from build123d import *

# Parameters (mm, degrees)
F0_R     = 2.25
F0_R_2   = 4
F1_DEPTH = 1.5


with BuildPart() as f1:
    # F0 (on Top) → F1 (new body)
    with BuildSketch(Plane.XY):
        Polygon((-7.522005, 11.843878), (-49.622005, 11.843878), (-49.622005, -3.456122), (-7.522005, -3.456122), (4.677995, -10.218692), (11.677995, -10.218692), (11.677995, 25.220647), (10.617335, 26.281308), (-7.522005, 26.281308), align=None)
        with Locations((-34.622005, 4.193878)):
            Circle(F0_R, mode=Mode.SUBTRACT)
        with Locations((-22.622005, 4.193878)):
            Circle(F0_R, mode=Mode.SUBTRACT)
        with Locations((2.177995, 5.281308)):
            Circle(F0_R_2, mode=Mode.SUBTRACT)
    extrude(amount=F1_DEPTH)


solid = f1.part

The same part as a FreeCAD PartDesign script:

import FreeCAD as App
import Part
import Sketcher
Q = App.Units.Quantity

doc = App.newDocument("Part")
body = doc.addObject("PartDesign::Body", "Body")

# Sketch on XY plane
sketch1 = doc.addObject("Sketcher::SketchObject", "Sketch")
body.addObject(sketch1)
sketch1.AttachmentSupport = (doc.XY_Plane, [""])
sketch1.MapMode = "FlatFace"
sketch1.addGeometry(Part.LineSegment(App.Vector(-7.522005, 11.843878, 0), App.Vector(-49.622005, 11.843878, 0)), False)
sketch1.addGeometry(Part.LineSegment(App.Vector(-49.622005, 11.843878, 0), App.Vector(-49.622005, -3.456122, 0)), False)
sketch1.addGeometry(Part.LineSegment(App.Vector(-49.622005, -3.456122, 0), App.Vector(-7.522005, -3.456122, 0)), False)
sketch1.addGeometry(Part.LineSegment(App.Vector(-7.522005, -3.456122, 0), App.Vector(4.677995, -10.218692, 0)), False)
sketch1.addGeometry(Part.LineSegment(App.Vector(4.677995, -10.218692, 0), App.Vector(11.677995, -10.218692, 0)), False)
sketch1.addGeometry(Part.LineSegment(App.Vector(11.677995, -10.218692, 0), App.Vector(11.677995, 25.220647, 0)), False)
sketch1.addGeometry(Part.LineSegment(App.Vector(11.677995, 25.220647, 0), App.Vector(10.617335, 26.281308, 0)), False)
sketch1.addGeometry(Part.LineSegment(App.Vector(10.617335, 26.281308, 0), App.Vector(-7.522005, 26.281308, 0)), False)
sketch1.addGeometry(Part.LineSegment(App.Vector(-7.522005, 26.281308, 0), App.Vector(-7.522005, 11.843878, 0)), False)
sketch1.addGeometry(Part.Circle(App.Vector(-34.622005, 4.193878, 0), App.Vector(0, 0, 1), 2.25), False)
sketch1.addGeometry(Part.Circle(App.Vector(-22.622005, 4.193878, 0), App.Vector(0, 0, 1), 2.25), False)
sketch1.addGeometry(Part.Circle(App.Vector(2.177995, 5.281308, 0), App.Vector(0, 0, 1), 4), False)
sketch1.addConstraint(Sketcher.Constraint("Coincident", 0, 2, 1, 1))
sketch1.addConstraint(Sketcher.Constraint("Coincident", 1, 2, 2, 1))
sketch1.addConstraint(Sketcher.Constraint("Coincident", 2, 2, 3, 1))
sketch1.addConstraint(Sketcher.Constraint("Coincident", 3, 2, 4, 1))
sketch1.addConstraint(Sketcher.Constraint("Coincident", 4, 2, 5, 1))
sketch1.addConstraint(Sketcher.Constraint("Coincident", 5, 2, 6, 1))
sketch1.addConstraint(Sketcher.Constraint("Coincident", 6, 2, 7, 1))
sketch1.addConstraint(Sketcher.Constraint("Coincident", 7, 2, 8, 1))
sketch1.addConstraint(Sketcher.Constraint("Coincident", 8, 2, 0, 1))
sketch1.addConstraint(Sketcher.Constraint("Horizontal", 0))
sketch1.addConstraint(Sketcher.Constraint("Vertical", 1))
sketch1.addConstraint(Sketcher.Constraint("Horizontal", 2))
sketch1.addConstraint(Sketcher.Constraint("Horizontal", 4))
sketch1.addConstraint(Sketcher.Constraint("Vertical", 5))
sketch1.addConstraint(Sketcher.Constraint("Horizontal", 7))
sketch1.addConstraint(Sketcher.Constraint("Vertical", 8))
sketch1.addConstraint(Sketcher.Constraint("Equal", 9, 10))
sketch1.addConstraint(Sketcher.Constraint("Horizontal", 9, 3, 10, 3))
sketch1.addConstraint(Sketcher.Constraint("Vertical", 2, 2, 7, 2))
sketch1.addConstraint(Sketcher.Constraint("Diameter", 11, Q("8 mm")))
sketch1.addConstraint(Sketcher.Constraint("Diameter", 9, Q("4.5 mm")))
sketch1.addConstraint(Sketcher.Constraint("DistanceX", 4, 1, 4, 2, Q("7 mm")))
sketch1.addConstraint(Sketcher.Constraint("Angle", 3, Q("-28.999998 deg")))
sketch1.addConstraint(Sketcher.Constraint("DistanceX", 0, 2, 0, 1, Q("42.1 mm")))
sketch1.addConstraint(Sketcher.Constraint("DistanceY", 1, 2, 1, 1, Q("15.3 mm")))
sketch1.addConstraint(Sketcher.Constraint("DistanceX", 9, 3, 10, 3, Q("12 mm")))
sketch1.addConstraint(Sketcher.Constraint("DistanceX", 0, 2, 9, 3, Q("15 mm")))
sketch1.addConstraint(Sketcher.Constraint("DistanceY", 11, 3, 6, 2, Q("21 mm")))
sketch1.addConstraint(Sketcher.Constraint("Distance", 6, Q("1.5 mm")))
sketch1.addConstraint(Sketcher.Constraint("DistanceX", 10, 3, 11, 3, Q("24.8 mm")))
sketch1.addConstraint(Sketcher.Constraint("DistanceX", 2, 2, 3, 2, Q("12.2 mm")))
sketch1.addConstraint(Sketcher.Constraint("DistanceY", 3, 2, 11, 3, Q("15.5 mm")))
sketch1.addConstraint(Sketcher.Constraint("DistanceY", 9, 3, 0, 2, Q("7.65 mm")))
sketch1.addConstraint(Sketcher.Constraint("DistanceX", 7, 2, 7, 1, Q("18.13934 mm")))
sketch1.addConstraint(Sketcher.Constraint("DistanceX", 9, 3, -1, 1, Q("34.622005 mm")))
sketch1.addConstraint(Sketcher.Constraint("DistanceY", -1, 1, 9, 3, Q("4.193878 mm")))
pad1 = doc.addObject("PartDesign::Pad", "Pad")
body.addObject(pad1)
pad1.Profile = sketch1
pad1.Length = 1.5

doc.recompute()
